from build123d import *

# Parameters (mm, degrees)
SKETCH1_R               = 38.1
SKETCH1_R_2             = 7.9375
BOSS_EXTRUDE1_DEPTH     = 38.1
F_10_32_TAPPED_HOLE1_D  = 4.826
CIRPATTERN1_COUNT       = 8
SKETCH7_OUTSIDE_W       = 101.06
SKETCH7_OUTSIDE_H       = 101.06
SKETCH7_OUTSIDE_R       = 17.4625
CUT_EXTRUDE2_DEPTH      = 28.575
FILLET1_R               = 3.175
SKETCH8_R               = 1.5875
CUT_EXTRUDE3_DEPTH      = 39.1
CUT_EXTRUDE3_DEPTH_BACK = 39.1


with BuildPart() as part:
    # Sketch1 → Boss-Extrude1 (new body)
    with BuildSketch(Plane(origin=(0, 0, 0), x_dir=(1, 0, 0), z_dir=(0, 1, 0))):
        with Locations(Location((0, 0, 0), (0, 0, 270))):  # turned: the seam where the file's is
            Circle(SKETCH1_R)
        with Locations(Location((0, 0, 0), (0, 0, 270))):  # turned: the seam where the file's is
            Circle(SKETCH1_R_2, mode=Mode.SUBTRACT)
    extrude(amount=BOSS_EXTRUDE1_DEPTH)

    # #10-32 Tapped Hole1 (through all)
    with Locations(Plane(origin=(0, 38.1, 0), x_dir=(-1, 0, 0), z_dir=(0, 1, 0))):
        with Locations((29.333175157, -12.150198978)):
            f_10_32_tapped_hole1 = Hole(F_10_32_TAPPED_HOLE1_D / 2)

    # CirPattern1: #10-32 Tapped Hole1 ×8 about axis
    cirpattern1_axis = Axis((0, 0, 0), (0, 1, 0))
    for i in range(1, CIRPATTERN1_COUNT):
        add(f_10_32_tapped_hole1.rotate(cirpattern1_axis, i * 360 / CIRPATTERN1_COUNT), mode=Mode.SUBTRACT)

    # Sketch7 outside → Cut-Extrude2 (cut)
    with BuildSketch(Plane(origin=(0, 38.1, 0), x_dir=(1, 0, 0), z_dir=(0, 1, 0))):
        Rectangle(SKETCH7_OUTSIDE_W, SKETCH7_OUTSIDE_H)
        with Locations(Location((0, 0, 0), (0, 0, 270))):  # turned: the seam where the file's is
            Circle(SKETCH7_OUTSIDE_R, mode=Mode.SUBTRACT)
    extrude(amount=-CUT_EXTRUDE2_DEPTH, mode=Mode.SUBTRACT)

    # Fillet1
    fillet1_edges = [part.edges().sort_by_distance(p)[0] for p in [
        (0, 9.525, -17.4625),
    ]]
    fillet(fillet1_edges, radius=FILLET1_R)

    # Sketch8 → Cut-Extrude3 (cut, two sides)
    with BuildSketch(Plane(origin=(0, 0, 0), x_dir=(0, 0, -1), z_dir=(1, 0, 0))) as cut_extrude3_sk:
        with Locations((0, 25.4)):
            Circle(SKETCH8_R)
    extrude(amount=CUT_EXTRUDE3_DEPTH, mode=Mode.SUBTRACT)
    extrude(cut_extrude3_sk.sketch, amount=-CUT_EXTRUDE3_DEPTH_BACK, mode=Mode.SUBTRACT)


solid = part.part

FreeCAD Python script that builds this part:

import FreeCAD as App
import Part
import Sketcher
Q = App.Units.Quantity


def edges_at(feature, points):
    """Names of the edges that pass closest to the given points."""
    edges = feature.Shape.Edges
    near = lambda p: min(range(len(edges)), key=lambda i: edges[i].distToShape(Part.Vertex(*p))[0])
    return sorted({f"Edge{near(p) + 1}" for p in points})


def add_polygon(sketch, points):
    """Adds a closed chain of lines whose ends are joined by coincident constraints."""
    first, n = sketch.GeometryCount, len(points)
    for a, b in zip(points, points[1:] + points[:1]):
        sketch.addGeometry(Part.LineSegment(App.Vector(*a, 0), App.Vector(*b, 0)), False)
    for i in range(n):
        sketch.addConstraint(Sketcher.Constraint("Coincident", first + i, 2, first + (i + 1) % n, 1))

doc = App.newDocument("Part")
body = doc.addObject("PartDesign::Body", "Body")

# Sketch on XZ plane
sketch1 = doc.addObject("Sketcher::SketchObject", "Sketch")
body.addObject(sketch1)
sketch1.AttachmentSupport = (doc.XZ_Plane, [""])
sketch1.MapMode = "FlatFace"
sketch1.addGeometry(Part.Circle(App.Vector(0, 0, 0), App.Vector(0, 0, 1), 38.1), False)
sketch1.addGeometry(Part.Circle(App.Vector(0, 0, 0), App.Vector(0, 0, 1), 7.9375), False)
sketch1.addConstraint(Sketcher.Constraint("Coincident", 0, 3, -1, 1))
sketch1.addConstraint(Sketcher.Constraint("Coincident", 1, 3, -1, 1))
sketch1.addConstraint(Sketcher.Constraint("Diameter", 0, Q("3 in")))
sketch1.addConstraint(Sketcher.Constraint("Diameter", 1, Q("0.625 in")))
pad1 = doc.addObject("PartDesign::Pad", "Pad")
body.addObject(pad1)
pad1.Profile = sketch1
pad1.Length = Q("1.5 in")
pad1.Reversed = True

# Sketch on XZ plane
sketch2 = doc.addObject("Sketcher::SketchObject", "Sketch001")
body.addObject(sketch2)
sketch2.AttachmentSupport = (doc.XZ_Plane, [""])
sketch2.MapMode = "FlatFace"
sketch2.AttachmentOffset = App.Placement(App.Vector(0, 0, -1.5 * 25.4), App.Rotation())
sketch2.addGeometry(Part.Circle(App.Vector(-29.333175, -12.150199, 0), App.Vector(0, 0, 1), 2.413), False)
sketch2.addConstraint(Sketcher.Constraint("Diameter", 0, Q("0.19 in")))
sketch2.addConstraint(Sketcher.Constraint("DistanceY", 0, 3, -1, 1, Q("12.150199 mm")))
sketch2.addConstraint(Sketcher.Constraint("DistanceX", 0, 3, -1, 1, Q("29.333175 mm")))
doc.recompute()
hole = doc.addObject("PartDesign::Hole", "Hole")
body.addObject(hole)
hole.Profile = sketch2
hole.ThreadType = "None"
hole.Diameter = Q("0.19 in")
hole.DepthType = "ThroughAll"
hole.Reversed = True
doc.recompute()

polarpattern = doc.addObject("PartDesign::PolarPattern", "PolarPattern")
body.addObject(polarpattern)
polarpattern.Originals = [hole]
polarpattern.Axis = (doc.Y_Axis, [""])
polarpattern.Angle = 360
polarpattern.Occurrences = 8
body.Tip = polarpattern

# Sketch on XZ plane
sketch3 = doc.addObject("Sketcher::SketchObject", "Sketch002")
body.addObject(sketch3)
sketch3.AttachmentSupport = (doc.XZ_Plane, [""])
sketch3.MapMode = "FlatFace"
sketch3.AttachmentOffset = App.Placement(App.Vector(0, 0, -1.5 * 25.4), App.Rotation())
add_polygon(sketch3, [(-50.53, -50.53), (-50.53, 50.53), (50.53, 50.53), (50.53, -50.53)])  # lines 0-3
sketch3.addGeometry(Part.Circle(App.Vector(0, 0, 0), App.Vector(0, 0, 1), 17.4625), False)  # 4
sketch3.addConstraint(Sketcher.Constraint("Vertical", 0))
sketch3.addConstraint(Sketcher.Constraint("Horizontal", 1))
sketch3.addConstraint(Sketcher.Constraint("Vertical", 2))
sketch3.addConstraint(Sketcher.Constraint("Horizontal", 3))
sketch3.addConstraint(Sketcher.Constraint("Coincident", 4, 3, -1, 1))
sketch3.addConstraint(Sketcher.Constraint("Symmetric", 0, 2, 2, 2, -1, 1))
sketch3.addConstraint(Sketcher.Constraint("Equal", 3, 0))
sketch3.addConstraint(Sketcher.Constraint("Diameter", 4, Q("1.375 in")))
sketch3.addConstraint(Sketcher.Constraint("DistanceX", 1, 1, 1, 2, Q("101.06 mm")))
pocket1 = doc.addObject("PartDesign::Pocket", "Pocket")
body.addObject(pocket1)
pocket1.Profile = sketch3
pocket1.Length = Q("1.125 in")
pocket1.Reversed = True
doc.recompute()

fillet = doc.addObject("PartDesign::Fillet", "Fillet")
body.addObject(fillet)
fillet.Base = (pocket1, edges_at(pocket1, [(0, 9.525, -17.462)]))
fillet.Radius = Q("0.125 in")

# Sketch on YZ plane
sketch4 = doc.addObject("Sketcher::SketchObject", "Sketch003")
body.addObject(sketch4)
sketch4.AttachmentSupport = (doc.YZ_Plane, [""])
sketch4.MapMode = "FlatFace"
sketch4.addGeometry(Part.Circle(App.Vector(25.4, 0, 0), App.Vector(0, 0, 1), 1.5875), False)
sketch4.addConstraint(Sketcher.Constraint("PointOnObject", 0, 3, -1))
sketch4.addConstraint(Sketcher.Constraint("Diameter", 0, Q("0.125 in")))
sketch4.addConstraint(Sketcher.Constraint("DistanceX", -1, 1, 0, 3, Q("1 in")))
pocket2 = doc.addObject("PartDesign::Pocket", "Pocket001")
body.addObject(pocket2)
pocket2.Profile = sketch4
pocket2.Type = "ThroughAll"
pocket2.Midplane = True

doc.recompute()
